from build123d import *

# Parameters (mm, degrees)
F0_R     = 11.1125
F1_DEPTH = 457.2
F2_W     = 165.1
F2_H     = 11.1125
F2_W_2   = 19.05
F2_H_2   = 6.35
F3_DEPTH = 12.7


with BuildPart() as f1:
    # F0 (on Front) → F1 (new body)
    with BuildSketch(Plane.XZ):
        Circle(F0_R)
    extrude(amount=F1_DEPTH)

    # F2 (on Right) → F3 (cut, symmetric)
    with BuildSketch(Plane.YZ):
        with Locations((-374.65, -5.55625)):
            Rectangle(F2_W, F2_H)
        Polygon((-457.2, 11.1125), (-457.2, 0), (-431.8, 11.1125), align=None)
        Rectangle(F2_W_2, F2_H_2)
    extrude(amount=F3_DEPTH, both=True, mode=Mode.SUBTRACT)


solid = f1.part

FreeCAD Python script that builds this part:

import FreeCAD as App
import Part
import Sketcher

V = App.Vector
Q = App.Units.Quantity


def add_polygon(sketch, points):
    """Adds a closed chain of lines whose ends are joined by coincident constraints."""
    first, n = sketch.GeometryCount, len(points)
    for a, b in zip(points, points[1:] + points[:1]):
        sketch.addGeometry(Part.LineSegment(App.Vector(*a, 0), App.Vector(*b, 0)), False)
    for i in range(n):
        sketch.addConstraint(Sketcher.Constraint("Coincident", first + i, 2, first + (i + 1) % n, 1))

doc = App.newDocument("Part")
body = doc.addObject("PartDesign::Body", "Body")

# Sketch on XZ plane
sketch1 = body.newObject("Sketcher::SketchObject", "Sketch")
sketch1.AttachmentSupport = (doc.getObject("XZ_Plane"), [""])
sketch1.MapMode = "FlatFace"
sketch1.addGeometry(Part.Circle(V(0, 0, 0), V(0, 0, 1), 11.1125), False)
sketch1.addConstraint([
    Sketcher.Constraint("Coincident", 0, 3, -1, 1),
    Sketcher.Constraint("Diameter", 0, Q("0.875 in")),
])
pad1 = body.newObject("PartDesign::Pad", "Pad")
pad1.Profile = sketch1
pad1.Length = Q("18 in")

# Sketch on YZ plane
sketch2 = body.newObject("Sketcher::SketchObject", "Sketch001")
sketch2.AttachmentSupport = (doc.getObject("YZ_Plane"), [""])
sketch2.MapMode = "FlatFace"
add_polygon(sketch2, [(-457.2, 0), (-457.2, -11.1125), (-292.1, -11.1125), (-292.1, 0)])  # lines 0-3
add_polygon(sketch2, [(-457.2, 11.1125), (-457.2, 0), (-431.8, 11.1125)])  # lines 4-6
add_polygon(sketch2, [(-9.525, 3.175), (-9.525, -3.175), (9.525, -3.175), (9.525, 3.175)])  # lines 7-10
sketch2.addConstraint([
    Sketcher.Constraint("Vertical", 0),
    Sketcher.Constraint("Horizontal", 1),
    Sketcher.Constraint("Vertical", 2),
    Sketcher.Constraint("Horizontal", 3),
    Sketcher.Constraint("Vertical", 4),
    Sketcher.Constraint("Horizontal", 6),
    Sketcher.Constraint("Vertical", 7),
    Sketcher.Constraint("Horizontal", 8),
    Sketcher.Constraint("Vertical", 9),
    Sketcher.Constraint("Horizontal", 10),
    Sketcher.Constraint("Coincident", 4, 2, 3, 2),
    Sketcher.Constraint("Symmetric", 7, 2, 9, 2, -1, 1),
    Sketcher.Constraint("PointOnObject", 2, 2, -1),
    Sketcher.Constraint("Equal", 2, 4),
    Sketcher.Constraint("DistanceX", 6, 2, 6, 1, Q("1 in")),
    Sketcher.Constraint("DistanceX", 1, 1, 1, 2, Q("6.5 in")),
    Sketcher.Constraint("DistanceX", 0, 2, -1, 1, Q("18 in")),
    Sketcher.Constraint("DistanceX", 8, 1, 8, 2, Q("0.75 in")),
    Sketcher.Constraint("DistanceY", 7, 2, 7, 1, Q("0.25 in")),
    Sketcher.Constraint("DistanceY", 0, 2, 0, 1, Q("0.4375 in")),
])
pocket1 = body.newObject("PartDesign::Pocket", "Pocket")
pocket1.Profile = sketch2
pocket1.Length = Q("1 in")
pocket1.Midplane = True

doc.recompute()
